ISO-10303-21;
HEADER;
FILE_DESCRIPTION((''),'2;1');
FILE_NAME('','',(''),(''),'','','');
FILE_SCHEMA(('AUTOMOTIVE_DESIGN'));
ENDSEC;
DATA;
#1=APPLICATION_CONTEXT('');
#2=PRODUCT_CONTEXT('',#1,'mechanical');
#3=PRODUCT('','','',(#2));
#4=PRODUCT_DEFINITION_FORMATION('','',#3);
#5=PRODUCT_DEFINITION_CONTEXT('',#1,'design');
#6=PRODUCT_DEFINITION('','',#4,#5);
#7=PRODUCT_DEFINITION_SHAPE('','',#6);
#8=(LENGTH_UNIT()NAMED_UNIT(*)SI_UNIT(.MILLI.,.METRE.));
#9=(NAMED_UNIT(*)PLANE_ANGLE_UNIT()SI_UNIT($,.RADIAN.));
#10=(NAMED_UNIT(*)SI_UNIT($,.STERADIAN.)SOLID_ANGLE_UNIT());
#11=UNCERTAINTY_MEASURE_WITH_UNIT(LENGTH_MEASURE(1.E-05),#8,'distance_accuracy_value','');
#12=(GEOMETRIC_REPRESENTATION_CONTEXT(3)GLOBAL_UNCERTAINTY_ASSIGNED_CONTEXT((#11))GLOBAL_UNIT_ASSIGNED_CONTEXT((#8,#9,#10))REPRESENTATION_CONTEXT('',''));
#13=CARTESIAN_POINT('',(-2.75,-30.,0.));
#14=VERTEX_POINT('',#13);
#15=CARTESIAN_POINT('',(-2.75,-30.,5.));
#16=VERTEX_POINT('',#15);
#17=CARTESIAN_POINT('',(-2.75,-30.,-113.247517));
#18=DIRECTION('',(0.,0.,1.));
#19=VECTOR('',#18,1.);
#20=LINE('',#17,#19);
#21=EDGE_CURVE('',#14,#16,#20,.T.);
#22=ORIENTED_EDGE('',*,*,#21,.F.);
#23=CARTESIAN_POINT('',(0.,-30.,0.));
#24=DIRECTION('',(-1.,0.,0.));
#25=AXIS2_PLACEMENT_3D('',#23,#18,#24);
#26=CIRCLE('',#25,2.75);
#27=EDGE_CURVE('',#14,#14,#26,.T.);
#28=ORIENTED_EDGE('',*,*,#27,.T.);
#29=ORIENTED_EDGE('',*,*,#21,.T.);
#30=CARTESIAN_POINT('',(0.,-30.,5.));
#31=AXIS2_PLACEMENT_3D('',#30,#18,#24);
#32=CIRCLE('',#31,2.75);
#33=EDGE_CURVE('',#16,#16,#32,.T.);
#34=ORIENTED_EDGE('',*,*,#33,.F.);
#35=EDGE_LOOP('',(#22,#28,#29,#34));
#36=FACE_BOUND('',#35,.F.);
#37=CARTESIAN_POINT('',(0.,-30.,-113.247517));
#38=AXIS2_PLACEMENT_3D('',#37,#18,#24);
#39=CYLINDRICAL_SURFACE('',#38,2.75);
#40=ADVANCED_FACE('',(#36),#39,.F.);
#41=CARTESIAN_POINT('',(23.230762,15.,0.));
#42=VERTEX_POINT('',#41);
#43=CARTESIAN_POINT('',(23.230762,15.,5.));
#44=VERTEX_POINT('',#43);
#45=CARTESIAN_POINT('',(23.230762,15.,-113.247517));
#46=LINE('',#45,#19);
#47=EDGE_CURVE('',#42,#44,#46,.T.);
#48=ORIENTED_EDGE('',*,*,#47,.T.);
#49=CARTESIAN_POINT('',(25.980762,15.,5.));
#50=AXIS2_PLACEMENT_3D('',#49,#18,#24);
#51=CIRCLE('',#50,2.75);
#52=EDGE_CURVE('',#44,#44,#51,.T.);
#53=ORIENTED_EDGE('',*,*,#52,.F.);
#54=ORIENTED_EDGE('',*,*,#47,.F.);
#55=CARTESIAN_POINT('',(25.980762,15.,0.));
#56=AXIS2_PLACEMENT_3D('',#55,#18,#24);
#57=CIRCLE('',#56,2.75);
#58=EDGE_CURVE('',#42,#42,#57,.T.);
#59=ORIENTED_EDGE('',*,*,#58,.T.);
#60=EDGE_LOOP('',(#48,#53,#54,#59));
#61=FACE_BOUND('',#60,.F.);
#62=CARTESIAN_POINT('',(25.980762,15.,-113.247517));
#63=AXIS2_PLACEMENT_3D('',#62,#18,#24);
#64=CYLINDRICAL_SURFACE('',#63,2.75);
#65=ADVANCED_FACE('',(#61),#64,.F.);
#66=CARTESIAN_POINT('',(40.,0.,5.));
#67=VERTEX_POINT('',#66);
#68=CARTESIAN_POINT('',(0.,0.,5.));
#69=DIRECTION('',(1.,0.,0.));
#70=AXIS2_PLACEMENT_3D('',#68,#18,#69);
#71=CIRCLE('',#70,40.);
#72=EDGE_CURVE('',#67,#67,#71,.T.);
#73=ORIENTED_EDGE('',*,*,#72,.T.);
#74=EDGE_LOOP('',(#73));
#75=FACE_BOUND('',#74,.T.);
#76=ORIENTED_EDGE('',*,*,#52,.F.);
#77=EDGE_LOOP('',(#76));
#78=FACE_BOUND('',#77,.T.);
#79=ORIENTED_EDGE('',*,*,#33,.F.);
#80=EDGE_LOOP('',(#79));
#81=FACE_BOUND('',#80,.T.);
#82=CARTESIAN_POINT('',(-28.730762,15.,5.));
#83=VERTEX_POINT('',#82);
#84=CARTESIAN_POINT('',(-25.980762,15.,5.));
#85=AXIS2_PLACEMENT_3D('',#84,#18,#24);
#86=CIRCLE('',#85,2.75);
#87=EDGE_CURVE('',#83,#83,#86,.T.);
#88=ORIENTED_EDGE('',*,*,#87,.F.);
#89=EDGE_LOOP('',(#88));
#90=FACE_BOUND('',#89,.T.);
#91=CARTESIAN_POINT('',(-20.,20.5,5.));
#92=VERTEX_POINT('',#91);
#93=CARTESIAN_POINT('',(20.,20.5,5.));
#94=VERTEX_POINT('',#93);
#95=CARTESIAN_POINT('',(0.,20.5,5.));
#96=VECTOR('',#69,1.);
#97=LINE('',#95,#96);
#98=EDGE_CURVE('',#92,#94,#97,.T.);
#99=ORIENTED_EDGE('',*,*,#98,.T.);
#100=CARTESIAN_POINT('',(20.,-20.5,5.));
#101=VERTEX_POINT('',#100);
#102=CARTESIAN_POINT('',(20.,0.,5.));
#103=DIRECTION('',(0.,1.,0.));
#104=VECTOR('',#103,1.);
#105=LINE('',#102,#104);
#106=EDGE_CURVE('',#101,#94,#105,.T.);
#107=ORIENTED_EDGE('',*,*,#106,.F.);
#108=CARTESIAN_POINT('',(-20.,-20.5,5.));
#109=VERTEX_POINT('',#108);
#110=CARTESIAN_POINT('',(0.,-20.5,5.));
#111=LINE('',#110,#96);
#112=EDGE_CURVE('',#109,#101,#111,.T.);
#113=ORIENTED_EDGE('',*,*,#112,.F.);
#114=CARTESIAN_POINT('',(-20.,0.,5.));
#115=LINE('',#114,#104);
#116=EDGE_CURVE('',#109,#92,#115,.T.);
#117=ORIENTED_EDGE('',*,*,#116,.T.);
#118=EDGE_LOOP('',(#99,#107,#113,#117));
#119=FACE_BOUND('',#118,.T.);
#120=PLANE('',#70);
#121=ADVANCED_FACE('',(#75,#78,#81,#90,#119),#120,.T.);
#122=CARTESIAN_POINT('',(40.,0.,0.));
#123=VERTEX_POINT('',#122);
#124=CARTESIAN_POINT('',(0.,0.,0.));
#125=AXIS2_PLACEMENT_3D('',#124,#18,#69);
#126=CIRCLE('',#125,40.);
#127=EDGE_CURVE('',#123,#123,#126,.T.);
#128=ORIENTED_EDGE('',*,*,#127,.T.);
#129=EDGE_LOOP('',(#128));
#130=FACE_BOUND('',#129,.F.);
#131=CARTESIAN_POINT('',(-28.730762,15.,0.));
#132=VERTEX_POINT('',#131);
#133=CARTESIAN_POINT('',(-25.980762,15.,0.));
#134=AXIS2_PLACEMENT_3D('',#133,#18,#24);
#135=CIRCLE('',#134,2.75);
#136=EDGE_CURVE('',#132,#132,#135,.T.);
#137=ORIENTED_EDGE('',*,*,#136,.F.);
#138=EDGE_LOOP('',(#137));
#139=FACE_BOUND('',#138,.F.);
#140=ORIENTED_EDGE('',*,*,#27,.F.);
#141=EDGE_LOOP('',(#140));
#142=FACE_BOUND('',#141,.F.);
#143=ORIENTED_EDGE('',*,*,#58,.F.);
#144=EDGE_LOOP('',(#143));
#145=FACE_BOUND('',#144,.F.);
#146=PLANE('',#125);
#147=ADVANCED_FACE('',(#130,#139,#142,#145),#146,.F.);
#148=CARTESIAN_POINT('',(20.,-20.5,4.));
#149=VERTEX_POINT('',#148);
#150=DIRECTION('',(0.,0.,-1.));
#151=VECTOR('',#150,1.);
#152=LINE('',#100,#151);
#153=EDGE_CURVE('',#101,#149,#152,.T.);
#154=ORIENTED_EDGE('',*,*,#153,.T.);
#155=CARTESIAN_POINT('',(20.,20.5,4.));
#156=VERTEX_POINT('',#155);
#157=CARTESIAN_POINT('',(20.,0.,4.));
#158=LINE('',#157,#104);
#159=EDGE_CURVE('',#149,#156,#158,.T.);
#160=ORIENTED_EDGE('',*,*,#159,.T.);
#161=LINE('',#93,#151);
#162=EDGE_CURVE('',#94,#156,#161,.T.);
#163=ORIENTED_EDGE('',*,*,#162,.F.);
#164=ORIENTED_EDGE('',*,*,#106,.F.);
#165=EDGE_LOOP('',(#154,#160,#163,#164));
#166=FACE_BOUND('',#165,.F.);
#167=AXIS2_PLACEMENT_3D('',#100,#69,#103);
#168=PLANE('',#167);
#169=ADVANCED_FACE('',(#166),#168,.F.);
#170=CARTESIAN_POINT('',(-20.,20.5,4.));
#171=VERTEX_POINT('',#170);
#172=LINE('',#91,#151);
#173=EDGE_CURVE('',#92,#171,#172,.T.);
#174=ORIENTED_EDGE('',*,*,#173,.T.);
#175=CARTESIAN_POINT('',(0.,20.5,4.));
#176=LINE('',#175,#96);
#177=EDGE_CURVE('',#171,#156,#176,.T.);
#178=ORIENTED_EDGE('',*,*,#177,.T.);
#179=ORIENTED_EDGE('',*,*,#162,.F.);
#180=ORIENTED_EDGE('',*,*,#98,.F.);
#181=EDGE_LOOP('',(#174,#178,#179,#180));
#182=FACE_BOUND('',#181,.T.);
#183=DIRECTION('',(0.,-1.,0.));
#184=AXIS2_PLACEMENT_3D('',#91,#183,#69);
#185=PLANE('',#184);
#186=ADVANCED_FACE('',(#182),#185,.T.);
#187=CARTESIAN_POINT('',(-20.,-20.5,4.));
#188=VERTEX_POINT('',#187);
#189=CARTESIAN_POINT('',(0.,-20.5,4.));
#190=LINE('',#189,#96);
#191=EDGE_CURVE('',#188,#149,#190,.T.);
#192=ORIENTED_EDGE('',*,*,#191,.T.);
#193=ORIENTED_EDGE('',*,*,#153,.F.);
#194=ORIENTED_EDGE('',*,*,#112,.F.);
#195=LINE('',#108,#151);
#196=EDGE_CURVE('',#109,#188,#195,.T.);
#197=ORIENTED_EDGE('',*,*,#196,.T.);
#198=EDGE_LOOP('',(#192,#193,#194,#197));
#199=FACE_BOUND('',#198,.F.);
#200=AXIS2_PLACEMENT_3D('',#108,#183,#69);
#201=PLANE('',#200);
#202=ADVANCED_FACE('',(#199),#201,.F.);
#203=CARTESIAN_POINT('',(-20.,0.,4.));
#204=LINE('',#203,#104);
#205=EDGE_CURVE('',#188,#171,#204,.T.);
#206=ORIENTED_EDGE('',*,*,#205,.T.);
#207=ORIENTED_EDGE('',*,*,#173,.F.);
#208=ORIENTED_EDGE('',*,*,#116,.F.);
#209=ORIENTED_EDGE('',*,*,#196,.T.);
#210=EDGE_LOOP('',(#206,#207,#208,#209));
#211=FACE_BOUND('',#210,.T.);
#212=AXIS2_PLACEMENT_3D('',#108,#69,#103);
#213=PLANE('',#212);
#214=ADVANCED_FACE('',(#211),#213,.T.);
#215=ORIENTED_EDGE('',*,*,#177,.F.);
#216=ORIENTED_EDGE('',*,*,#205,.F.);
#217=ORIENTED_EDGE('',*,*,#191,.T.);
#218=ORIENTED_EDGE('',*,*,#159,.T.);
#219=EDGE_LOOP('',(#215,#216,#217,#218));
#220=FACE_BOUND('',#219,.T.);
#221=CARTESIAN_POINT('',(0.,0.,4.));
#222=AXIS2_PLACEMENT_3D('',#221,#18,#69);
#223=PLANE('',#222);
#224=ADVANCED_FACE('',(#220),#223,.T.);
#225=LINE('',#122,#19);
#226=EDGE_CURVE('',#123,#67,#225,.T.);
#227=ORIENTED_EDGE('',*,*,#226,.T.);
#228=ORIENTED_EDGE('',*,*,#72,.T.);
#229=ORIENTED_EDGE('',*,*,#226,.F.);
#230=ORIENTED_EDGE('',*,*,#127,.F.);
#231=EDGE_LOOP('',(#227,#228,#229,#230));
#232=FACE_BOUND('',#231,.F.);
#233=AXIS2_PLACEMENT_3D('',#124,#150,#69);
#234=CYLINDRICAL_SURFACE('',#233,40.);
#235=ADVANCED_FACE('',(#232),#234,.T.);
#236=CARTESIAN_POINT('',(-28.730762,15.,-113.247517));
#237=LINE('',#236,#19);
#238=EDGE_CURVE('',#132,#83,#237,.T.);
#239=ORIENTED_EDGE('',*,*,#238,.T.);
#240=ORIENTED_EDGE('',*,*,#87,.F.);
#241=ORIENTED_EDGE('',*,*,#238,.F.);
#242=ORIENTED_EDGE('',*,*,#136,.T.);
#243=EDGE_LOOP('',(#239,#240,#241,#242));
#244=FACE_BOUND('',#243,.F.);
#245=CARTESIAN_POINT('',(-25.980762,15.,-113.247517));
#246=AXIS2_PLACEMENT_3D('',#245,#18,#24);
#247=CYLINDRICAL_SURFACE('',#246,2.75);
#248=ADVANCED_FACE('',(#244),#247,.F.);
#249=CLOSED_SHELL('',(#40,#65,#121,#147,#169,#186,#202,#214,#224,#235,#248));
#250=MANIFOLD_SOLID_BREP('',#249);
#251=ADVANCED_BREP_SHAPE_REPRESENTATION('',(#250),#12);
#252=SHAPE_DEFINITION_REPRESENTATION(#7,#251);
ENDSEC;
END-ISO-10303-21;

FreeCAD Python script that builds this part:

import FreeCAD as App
import Part
import Sketcher


def add_polygon(sketch, points):
    """Adds a closed chain of lines whose ends are joined by coincident constraints."""
    first, n = sketch.GeometryCount, len(points)
    for a, b in zip(points, points[1:] + points[:1]):
        sketch.addGeometry(Part.LineSegment(App.Vector(*a, 0), App.Vector(*b, 0)), False)
    for i in range(n):
        sketch.addConstraint(Sketcher.Constraint("Coincident", first + i, 2, first + (i + 1) % n, 1))

doc = App.newDocument("Part")
body = doc.addObject("PartDesign::Body", "Body")

sketch1 = doc.addObject("Sketcher::SketchObject", "Sketch")
body.addObject(sketch1)
sketch1.AttachmentSupport = (doc.XY_Plane, [""])
sketch1.MapMode = "FlatFace"
sketch1.addGeometry(Part.Circle(App.Vector(0, 0, 0), App.Vector(0, 0, 1), 40), False)
sketch1.addConstraint([
    Sketcher.Constraint("Coincident", 0, 3, -1, 1),
    Sketcher.Constraint("Diameter", 0, 80.0),
])
pad1 = doc.addObject("PartDesign::Pad", "Pad")
body.addObject(pad1)
pad1.Profile = sketch1
pad1.Length = 5

sketch2 = doc.addObject("Sketcher::SketchObject", "Sketch001")
body.addObject(sketch2)
sketch2.AttachmentSupport = (doc.XY_Plane, [""])
sketch2.MapMode = "FlatFace"
sketch2.AttachmentOffset = App.Placement(App.Vector(0, 0, 5), App.Rotation())
add_polygon(sketch2, [(-20, 20), (-20, -20), (20, -20), (20, 20)])
sketch2.addConstraint([
    Sketcher.Constraint("Vertical", 0),
    Sketcher.Constraint("Horizontal", 1),
    Sketcher.Constraint("Vertical", 2),
    Sketcher.Constraint("Horizontal", 3),
    Sketcher.Constraint("Symmetric", 0, 2, 2, 2, -1, 1),
    Sketcher.Constraint("DistanceX", 1, 1, 1, 2, 40.0),
    Sketcher.Constraint("DistanceY", 0, 2, 0, 1, 41.0),
])
pocket1 = doc.addObject("PartDesign::Pocket", "Pocket")
body.addObject(pocket1)
pocket1.Profile = sketch2
pocket1.Length = 1

sketch3 = doc.addObject("Sketcher::SketchObject", "Sketch002")
body.addObject(sketch3)
sketch3.AttachmentSupport = (doc.XY_Plane, [""])
sketch3.MapMode = "FlatFace"
sketch3.addGeometry([
    Part.Circle(App.Vector(0, -30, 0), App.Vector(0, 0, 1), 2.8),
    Part.Circle(App.Vector(26, 15, 0), App.Vector(0, 0, 1), 2.8),
    Part.Circle(App.Vector(-26, 15, 0), App.Vector(0, 0, 1), 2.8),
], False)
sketch3.addConstraint([
    Sketcher.Constraint("Equal", 0, 1),
    Sketcher.Constraint("Equal", 1, 2),
    Sketcher.Constraint("Symmetric", 1, 3, 2, 3, -2),
    Sketcher.Constraint("PointOnObject", 0, 3, -2),
    Sketcher.Constraint("Diameter", 0, 5.5),
    Sketcher.Constraint("DistanceY", 0, 3, -1, 1, 30.0),
    Sketcher.Constraint("DistanceY", -1, 1, 1, 3, 15.0),
    Sketcher.Constraint("DistanceX", -1, 1, 1, 3, 25.980762),
])
doc.recompute()
hole = doc.addObject("PartDesign::Hole", "Hole")
body.addObject(hole)
hole.Profile = sketch3
hole.ThreadType = "None"
hole.Diameter = 5.5
hole.DepthType = "ThroughAll"
hole.Reversed = True

sketch4 = doc.addObject("Sketcher::SketchObject", "Sketch003")
body.addObject(sketch4)
sketch4.AttachmentSupport = (doc.XY_Plane, [""])
sketch4.MapMode = "FlatFace"
sketch4.AttachmentOffset = App.Placement(App.Vector(0, 0, 5), App.Rotation())
add_polygon(sketch4, [(-20, 20), (-20, -20), (20, -20), (20, 20)])
sketch4.addConstraint([
    Sketcher.Constraint("Vertical", 0),
    Sketcher.Constraint("Horizontal", 1),
    Sketcher.Constraint("Vertical", 2),
    Sketcher.Constraint("Horizontal", 3),
    Sketcher.Constraint("Symmetric", 0, 2, 2, 2, -1, 1),
    Sketcher.Constraint("DistanceX", 1, 1, 1, 2, 40.0),
    Sketcher.Constraint("DistanceY", 0, 2, 0, 1, 41.0),
])
pocket2 = doc.addObject("PartDesign::Pocket", "Pocket001")
body.addObject(pocket2)
pocket2.Profile = sketch4
pocket2.Length = 1

doc.recompute()
